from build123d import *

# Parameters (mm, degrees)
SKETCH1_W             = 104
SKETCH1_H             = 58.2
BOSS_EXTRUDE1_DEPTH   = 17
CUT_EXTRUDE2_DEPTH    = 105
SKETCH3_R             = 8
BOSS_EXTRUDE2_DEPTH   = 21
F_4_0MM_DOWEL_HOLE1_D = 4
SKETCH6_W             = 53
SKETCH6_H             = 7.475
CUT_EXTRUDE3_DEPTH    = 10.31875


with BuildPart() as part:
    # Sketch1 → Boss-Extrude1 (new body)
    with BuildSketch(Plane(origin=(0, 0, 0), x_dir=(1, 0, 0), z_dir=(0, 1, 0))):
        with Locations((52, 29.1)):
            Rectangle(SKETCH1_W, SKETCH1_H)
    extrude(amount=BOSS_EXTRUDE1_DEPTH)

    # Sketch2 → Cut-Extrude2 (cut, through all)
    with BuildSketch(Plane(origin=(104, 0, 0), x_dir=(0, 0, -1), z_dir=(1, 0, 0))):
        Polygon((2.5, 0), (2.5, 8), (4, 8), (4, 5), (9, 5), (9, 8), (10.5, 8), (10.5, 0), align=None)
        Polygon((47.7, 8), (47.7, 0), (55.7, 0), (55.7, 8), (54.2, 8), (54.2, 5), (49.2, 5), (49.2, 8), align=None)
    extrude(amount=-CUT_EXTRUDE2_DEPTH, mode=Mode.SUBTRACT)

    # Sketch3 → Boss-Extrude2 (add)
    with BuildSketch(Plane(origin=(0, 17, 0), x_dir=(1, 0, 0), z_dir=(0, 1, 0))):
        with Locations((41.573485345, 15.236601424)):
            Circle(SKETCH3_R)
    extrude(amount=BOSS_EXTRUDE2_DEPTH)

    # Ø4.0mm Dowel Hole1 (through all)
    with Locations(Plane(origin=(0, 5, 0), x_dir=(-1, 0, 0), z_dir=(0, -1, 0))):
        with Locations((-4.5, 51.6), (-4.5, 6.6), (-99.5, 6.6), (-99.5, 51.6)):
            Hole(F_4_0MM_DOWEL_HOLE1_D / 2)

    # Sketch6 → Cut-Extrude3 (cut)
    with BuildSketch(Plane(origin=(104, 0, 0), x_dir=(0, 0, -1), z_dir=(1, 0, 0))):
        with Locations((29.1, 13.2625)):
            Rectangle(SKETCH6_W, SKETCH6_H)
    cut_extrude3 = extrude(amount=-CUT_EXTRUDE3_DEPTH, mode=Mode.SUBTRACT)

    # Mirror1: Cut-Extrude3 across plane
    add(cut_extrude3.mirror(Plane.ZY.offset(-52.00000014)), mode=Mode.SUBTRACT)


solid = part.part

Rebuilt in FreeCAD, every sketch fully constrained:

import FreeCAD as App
import Part
import Sketcher

V = App.Vector
Q = App.Units.Quantity

doc = App.newDocument("Part")
body = doc.addObject("PartDesign::Body", "Body")

sketch1 = body.newObject("Sketcher::SketchObject", "Sketch")
sketch1.AttachmentSupport = (doc.getObject("XZ_Plane"), [""])
sketch1.MapMode = "FlatFace"
sketch1.addGeometry(Part.LineSegment(V(0, -58, 0), V(0, 0, 0)), False)
sketch1.addGeometry(Part.LineSegment(V(0, 0, 0), V(104, 0, 0)), False)
sketch1.addGeometry(Part.LineSegment(V(104, 0, 0), V(104, -58, 0)), False)
sketch1.addGeometry(Part.LineSegment(V(104, -58, 0), V(0, -58, 0)), False)
sketch1.addConstraint(Sketcher.Constraint("Coincident", 0, 2, 1, 1))
sketch1.addConstraint(Sketcher.Constraint("Coincident", 1, 2, 2, 1))
sketch1.addConstraint(Sketcher.Constraint("Coincident", 2, 2, 3, 1))
sketch1.addConstraint(Sketcher.Constraint("Coincident", 3, 2, 0, 1))
sketch1.addConstraint(Sketcher.Constraint("Vertical", 0))
sketch1.addConstraint(Sketcher.Constraint("Horizontal", 1))
sketch1.addConstraint(Sketcher.Constraint("Vertical", 2))
sketch1.addConstraint(Sketcher.Constraint("Horizontal", 3))
sketch1.addConstraint(Sketcher.Constraint("Coincident", 0, 2, -1, 1))
sketch1.addConstraint(Sketcher.Constraint("DistanceX", 1, 1, 1, 2, Q("104 mm")))
sketch1.addConstraint(Sketcher.Constraint("DistanceY", 0, 1, 0, 2, Q("58.2 mm")))
pad1 = body.newObject("PartDesign::Pad", "Pad")
pad1.Profile = sketch1
pad1.Length = 17
pad1.Reversed = True

sketch2 = body.newObject("Sketcher::SketchObject", "Sketch001")
sketch2.AttachmentSupport = (doc.getObject("YZ_Plane"), [""])
sketch2.MapMode = "FlatFace"
sketch2.AttachmentOffset = App.Placement(V(0, 0, 104), App.Rotation())
sketch2.addGeometry(Part.LineSegment(V(8, -2.5, 0), V(0, -2.5, 0)), False)
sketch2.addGeometry(Part.LineSegment(V(0, -2.5, 0), V(0, -10.5, 0)), False)
sketch2.addGeometry(Part.LineSegment(V(0, -10.5, 0), V(8, -10.5, 0)), False)
sketch2.addGeometry(Part.LineSegment(V(8, -10.5, 0), V(8, -9, 0)), False)
sketch2.addGeometry(Part.LineSegment(V(8, -9, 0), V(5, -9, 0)), False)
sketch2.addGeometry(Part.LineSegment(V(5, -9, 0), V(5, -4, 0)), False)
sketch2.addGeometry(Part.LineSegment(V(5, -4, 0), V(8, -4, 0)), False)
sketch2.addGeometry(Part.LineSegment(V(8, -4, 0), V(8, -2.5, 0)), False)
sketch2.addGeometry(Part.LineSegment(V(8, -47.7, 0), V(0, -47.7, 0)), False)
sketch2.addGeometry(Part.LineSegment(V(0, -47.7, 0), V(0, -55.7, 0)), False)
sketch2.addGeometry(Part.LineSegment(V(0, -55.7, 0), V(8, -55.7, 0)), False)
sketch2.addGeometry(Part.LineSegment(V(8, -55.7, 0), V(8, -54.2, 0)), False)
sketch2.addGeometry(Part.LineSegment(V(8, -54.2, 0), V(5, -54.2, 0)), False)
sketch2.addGeometry(Part.LineSegment(V(5, -54.2, 0), V(5, -49.2, 0)), False)
sketch2.addGeometry(Part.LineSegment(V(5, -49.2, 0), V(8, -49.2, 0)), False)
sketch2.addGeometry(Part.LineSegment(V(8, -49.2, 0), V(8, -47.7, 0)), False)
sketch2.addConstraint(Sketcher.Constraint("Coincident", 0, 2, 1, 1))
sketch2.addConstraint(Sketcher.Constraint("Coincident", 1, 2, 2, 1))
sketch2.addConstraint(Sketcher.Constraint("Coincident", 2, 2, 3, 1))
sketch2.addConstraint(Sketcher.Constraint("Coincident", 3, 2, 4, 1))
sketch2.addConstraint(Sketcher.Constraint("Coincident", 4, 2, 5, 1))
sketch2.addConstraint(Sketcher.Constraint("Coincident", 5, 2, 6, 1))
sketch2.addConstraint(Sketcher.Constraint("Coincident", 6, 2, 7, 1))
sketch2.addConstraint(Sketcher.Constraint("Coincident", 7, 2, 0, 1))
sketch2.addConstraint(Sketcher.Constraint("Coincident", 8, 2, 9, 1))
sketch2.addConstraint(Sketcher.Constraint("Coincident", 9, 2, 10, 1))
sketch2.addConstraint(Sketcher.Constraint("Coincident", 10, 2, 11, 1))
sketch2.addConstraint(Sketcher.Constraint("Coincident", 11, 2, 12, 1))
sketch2.addConstraint(Sketcher.Constraint("Coincident", 12, 2, 13, 1))
sketch2.addConstraint(Sketcher.Constraint("Coincident", 13, 2, 14, 1))
sketch2.addConstraint(Sketcher.Constraint("Coincident", 14, 2, 15, 1))
sketch2.addConstraint(Sketcher.Constraint("Coincident", 15, 2, 8, 1))
sketch2.addConstraint(Sketcher.Constraint("Horizontal", 0))
sketch2.addConstraint(Sketcher.Constraint("Vertical", 1))
sketch2.addConstraint(Sketcher.Constraint("Horizontal", 2))
sketch2.addConstraint(Sketcher.Constraint("Vertical", 3))
sketch2.addConstraint(Sketcher.Constraint("Horizontal", 4))
sketch2.addConstraint(Sketcher.Constraint("Vertical", 5))
sketch2.addConstraint(Sketcher.Constraint("Horizontal", 6))
sketch2.addConstraint(Sketcher.Constraint("Vertical", 7))
sketch2.addConstraint(Sketcher.Constraint("Horizontal", 8))
sketch2.addConstraint(Sketcher.Constraint("Vertical", 9))
sketch2.addConstraint(Sketcher.Constraint("Horizontal", 10))
sketch2.addConstraint(Sketcher.Constraint("Vertical", 11))
sketch2.addConstraint(Sketcher.Constraint("Horizontal", 12))
sketch2.addConstraint(Sketcher.Constraint("Vertical", 13))
sketch2.addConstraint(Sketcher.Constraint("Horizontal", 14))
sketch2.addConstraint(Sketcher.Constraint("Vertical", 15))
sketch2.addConstraint(Sketcher.Constraint("PointOnObject", 0, 2, -2))
sketch2.addConstraint(Sketcher.Constraint("PointOnObject", 8, 2, -2))
sketch2.addConstraint(Sketcher.Constraint("Vertical", 3, 2, 6, 2))
sketch2.addConstraint(Sketcher.Constraint("Vertical", 7, 2, 10, 2))
sketch2.addConstraint(Sketcher.Constraint("Vertical", 5, 2, 12, 2))
sketch2.addConstraint(Sketcher.Constraint("Vertical", 11, 2, 14, 2))
sketch2.addConstraint(Sketcher.Constraint("Equal", 10, 1))
sketch2.addConstraint(Sketcher.Constraint("Equal", 3, 7))
sketch2.addConstraint(Sketcher.Constraint("Equal", 1, 9))
sketch2.addConstraint(Sketcher.Constraint("Equal", 7, 11))
sketch2.addConstraint(Sketcher.Constraint("Equal", 5, 13))
sketch2.addConstraint(Sketcher.Constraint("DistanceX", 0, 2, 0, 1, Q("8 mm")))
sketch2.addConstraint(Sketcher.Constraint("DistanceX", 4, 2, 4, 1, Q("3 mm")))
sketch2.addConstraint(Sketcher.Constraint("DistanceY", 5, 1, 5, 2, Q("5 mm")))
sketch2.addConstraint(Sketcher.Constraint("DistanceY", 3, 2, -1, 1, Q("9 mm")))
sketch2.addConstraint(Sketcher.Constraint("DistanceY", 8, 2, -1, 1, Q("47.7 mm")))
pocket1 = body.newObject("PartDesign::Pocket", "Pocket")
pocket1.Profile = sketch2
pocket1.Type = "ThroughAll"

sketch3 = body.newObject("Sketcher::SketchObject", "Sketch002")
sketch3.AttachmentSupport = (doc.getObject("XZ_Plane"), [""])
sketch3.MapMode = "FlatFace"
sketch3.AttachmentOffset = App.Placement(V(0, 0, -17), App.Rotation())
sketch3.addGeometry(Part.Circle(V(42, -15, 0), V(0, 0, 1), 8), False)
sketch3.addConstraint(Sketcher.Constraint("Diameter", 0, Q("16 mm")))
sketch3.addConstraint(Sketcher.Constraint("DistanceY", 0, 3, -1, 1, Q("15.236601 mm")))
sketch3.addConstraint(Sketcher.Constraint("DistanceX", -1, 1, 0, 3, Q("41.573485 mm")))
pad2 = body.newObject("PartDesign::Pad", "Pad001")
pad2.Profile = sketch3
pad2.Length = 21
pad2.Reversed = True

sketch4 = body.newObject("Sketcher::SketchObject", "Sketch003")
sketch4.AttachmentSupport = (doc.getObject("XZ_Plane"), [""])
sketch4.MapMode = "FlatFace"
sketch4.AttachmentOffset = App.Placement(V(0, 0, -5), App.Rotation())
sketch4.addGeometry(Part.Circle(V(4.5, -51.6, 0), V(0, 0, 1), 2), False)
sketch4.addGeometry(Part.Circle(V(4.5, -6.6, 0), V(0, 0, 1), 2), False)
sketch4.addGeometry(Part.Circle(V(99.5, -6.6, 0), V(0, 0, 1), 2), False)
sketch4.addGeometry(Part.Circle(V(99.5, -51.6, 0), V(0, 0, 1), 2), False)
sketch4.addConstraint(Sketcher.Constraint("Equal", 0, 1))
sketch4.addConstraint(Sketcher.Constraint("Equal", 1, 2))
sketch4.addConstraint(Sketcher.Constraint("Equal", 2, 3))
sketch4.addConstraint(Sketcher.Constraint("Horizontal", 1, 3, 2, 3))
sketch4.addConstraint(Sketcher.Constraint("Horizontal", 0, 3, 3, 3))
sketch4.addConstraint(Sketcher.Constraint("Vertical", 0, 3, 1, 3))
sketch4.addConstraint(Sketcher.Constraint("Vertical", 2, 3, 3, 3))
sketch4.addConstraint(Sketcher.Constraint("Diameter", 0, Q("4 mm")))
sketch4.addConstraint(Sketcher.Constraint("DistanceY", 0, 3, 1, 3, Q("45 mm")))
sketch4.addConstraint(Sketcher.Constraint("DistanceX", 1, 3, 2, 3, Q("95 mm")))
sketch4.addConstraint(Sketcher.Constraint("DistanceX", -1, 1, 0, 3, Q("4.5 mm")))
sketch4.addConstraint(Sketcher.Constraint("DistanceY", 0, 3, -1, 1, Q("51.6 mm")))
doc.recompute()
hole = body.newObject("PartDesign::Hole", "Hole")
hole.Profile = sketch4
hole.ThreadType = "None"
hole.Diameter = 4
hole.DepthType = "ThroughAll"

sketch5 = body.newObject("Sketcher::SketchObject", "Sketch004")
sketch5.AttachmentSupport = (doc.getObject("YZ_Plane"), [""])
sketch5.MapMode = "FlatFace"
sketch5.AttachmentOffset = App.Placement(V(0, 0, 104), App.Rotation())
sketch5.addGeometry(Part.LineSegment(V(17, -3, 0), V(10, -3, 0)), False)
sketch5.addGeometry(Part.LineSegment(V(10, -3, 0), V(10, -56, 0)), False)
sketch5.addGeometry(Part.LineSegment(V(10, -56, 0), V(17, -56, 0)), False)
sketch5.addGeometry(Part.LineSegment(V(17, -56, 0), V(17, -3, 0)), False)
sketch5.addConstraint(Sketcher.Constraint("Coincident", 0, 2, 1, 1))
sketch5.addConstraint(Sketcher.Constraint("Coincident", 1, 2, 2, 1))
sketch5.addConstraint(Sketcher.Constraint("Coincident", 2, 2, 3, 1))
sketch5.addConstraint(Sketcher.Constraint("Coincident", 3, 2, 0, 1))
sketch5.addConstraint(Sketcher.Constraint("Horizontal", 0))
sketch5.addConstraint(Sketcher.Constraint("Vertical", 1))
sketch5.addConstraint(Sketcher.Constraint("Horizontal", 2))
sketch5.addConstraint(Sketcher.Constraint("Vertical", 3))
sketch5.addConstraint(Sketcher.Constraint("DistanceY", 1, 2, 1, 1, Q("53 mm")))
sketch5.addConstraint(Sketcher.Constraint("DistanceX", -1, 1, 2, 2, Q("17 mm")))
sketch5.addConstraint(Sketcher.Constraint("DistanceY", 0, 2, -1, 1, Q("2.6 mm")))
sketch5.addConstraint(Sketcher.Constraint("DistanceX", 0, 2, 0, 1, Q("7.475 mm")))
pocket2 = body.newObject("PartDesign::Pocket", "Pocket001")
pocket2.Profile = sketch5
pocket2.Length = 10.31875
doc.recompute()

datumplane = body.newObject("PartDesign::Plane", "DatumPlane")
datumplane.AttachmentSupport = (doc.getObject("YZ_Plane"), [""])
datumplane.MapMode = "FlatFace"
datumplane.AttachmentOffset = App.Placement(V(0, 0, 52), App.Rotation())
mirrored = body.newObject("PartDesign::Mirrored", "Mirrored")
mirrored.Originals = [pocket2]
mirrored.MirrorPlane = (datumplane, [""])
body.Tip = mirrored

doc.recompute()
